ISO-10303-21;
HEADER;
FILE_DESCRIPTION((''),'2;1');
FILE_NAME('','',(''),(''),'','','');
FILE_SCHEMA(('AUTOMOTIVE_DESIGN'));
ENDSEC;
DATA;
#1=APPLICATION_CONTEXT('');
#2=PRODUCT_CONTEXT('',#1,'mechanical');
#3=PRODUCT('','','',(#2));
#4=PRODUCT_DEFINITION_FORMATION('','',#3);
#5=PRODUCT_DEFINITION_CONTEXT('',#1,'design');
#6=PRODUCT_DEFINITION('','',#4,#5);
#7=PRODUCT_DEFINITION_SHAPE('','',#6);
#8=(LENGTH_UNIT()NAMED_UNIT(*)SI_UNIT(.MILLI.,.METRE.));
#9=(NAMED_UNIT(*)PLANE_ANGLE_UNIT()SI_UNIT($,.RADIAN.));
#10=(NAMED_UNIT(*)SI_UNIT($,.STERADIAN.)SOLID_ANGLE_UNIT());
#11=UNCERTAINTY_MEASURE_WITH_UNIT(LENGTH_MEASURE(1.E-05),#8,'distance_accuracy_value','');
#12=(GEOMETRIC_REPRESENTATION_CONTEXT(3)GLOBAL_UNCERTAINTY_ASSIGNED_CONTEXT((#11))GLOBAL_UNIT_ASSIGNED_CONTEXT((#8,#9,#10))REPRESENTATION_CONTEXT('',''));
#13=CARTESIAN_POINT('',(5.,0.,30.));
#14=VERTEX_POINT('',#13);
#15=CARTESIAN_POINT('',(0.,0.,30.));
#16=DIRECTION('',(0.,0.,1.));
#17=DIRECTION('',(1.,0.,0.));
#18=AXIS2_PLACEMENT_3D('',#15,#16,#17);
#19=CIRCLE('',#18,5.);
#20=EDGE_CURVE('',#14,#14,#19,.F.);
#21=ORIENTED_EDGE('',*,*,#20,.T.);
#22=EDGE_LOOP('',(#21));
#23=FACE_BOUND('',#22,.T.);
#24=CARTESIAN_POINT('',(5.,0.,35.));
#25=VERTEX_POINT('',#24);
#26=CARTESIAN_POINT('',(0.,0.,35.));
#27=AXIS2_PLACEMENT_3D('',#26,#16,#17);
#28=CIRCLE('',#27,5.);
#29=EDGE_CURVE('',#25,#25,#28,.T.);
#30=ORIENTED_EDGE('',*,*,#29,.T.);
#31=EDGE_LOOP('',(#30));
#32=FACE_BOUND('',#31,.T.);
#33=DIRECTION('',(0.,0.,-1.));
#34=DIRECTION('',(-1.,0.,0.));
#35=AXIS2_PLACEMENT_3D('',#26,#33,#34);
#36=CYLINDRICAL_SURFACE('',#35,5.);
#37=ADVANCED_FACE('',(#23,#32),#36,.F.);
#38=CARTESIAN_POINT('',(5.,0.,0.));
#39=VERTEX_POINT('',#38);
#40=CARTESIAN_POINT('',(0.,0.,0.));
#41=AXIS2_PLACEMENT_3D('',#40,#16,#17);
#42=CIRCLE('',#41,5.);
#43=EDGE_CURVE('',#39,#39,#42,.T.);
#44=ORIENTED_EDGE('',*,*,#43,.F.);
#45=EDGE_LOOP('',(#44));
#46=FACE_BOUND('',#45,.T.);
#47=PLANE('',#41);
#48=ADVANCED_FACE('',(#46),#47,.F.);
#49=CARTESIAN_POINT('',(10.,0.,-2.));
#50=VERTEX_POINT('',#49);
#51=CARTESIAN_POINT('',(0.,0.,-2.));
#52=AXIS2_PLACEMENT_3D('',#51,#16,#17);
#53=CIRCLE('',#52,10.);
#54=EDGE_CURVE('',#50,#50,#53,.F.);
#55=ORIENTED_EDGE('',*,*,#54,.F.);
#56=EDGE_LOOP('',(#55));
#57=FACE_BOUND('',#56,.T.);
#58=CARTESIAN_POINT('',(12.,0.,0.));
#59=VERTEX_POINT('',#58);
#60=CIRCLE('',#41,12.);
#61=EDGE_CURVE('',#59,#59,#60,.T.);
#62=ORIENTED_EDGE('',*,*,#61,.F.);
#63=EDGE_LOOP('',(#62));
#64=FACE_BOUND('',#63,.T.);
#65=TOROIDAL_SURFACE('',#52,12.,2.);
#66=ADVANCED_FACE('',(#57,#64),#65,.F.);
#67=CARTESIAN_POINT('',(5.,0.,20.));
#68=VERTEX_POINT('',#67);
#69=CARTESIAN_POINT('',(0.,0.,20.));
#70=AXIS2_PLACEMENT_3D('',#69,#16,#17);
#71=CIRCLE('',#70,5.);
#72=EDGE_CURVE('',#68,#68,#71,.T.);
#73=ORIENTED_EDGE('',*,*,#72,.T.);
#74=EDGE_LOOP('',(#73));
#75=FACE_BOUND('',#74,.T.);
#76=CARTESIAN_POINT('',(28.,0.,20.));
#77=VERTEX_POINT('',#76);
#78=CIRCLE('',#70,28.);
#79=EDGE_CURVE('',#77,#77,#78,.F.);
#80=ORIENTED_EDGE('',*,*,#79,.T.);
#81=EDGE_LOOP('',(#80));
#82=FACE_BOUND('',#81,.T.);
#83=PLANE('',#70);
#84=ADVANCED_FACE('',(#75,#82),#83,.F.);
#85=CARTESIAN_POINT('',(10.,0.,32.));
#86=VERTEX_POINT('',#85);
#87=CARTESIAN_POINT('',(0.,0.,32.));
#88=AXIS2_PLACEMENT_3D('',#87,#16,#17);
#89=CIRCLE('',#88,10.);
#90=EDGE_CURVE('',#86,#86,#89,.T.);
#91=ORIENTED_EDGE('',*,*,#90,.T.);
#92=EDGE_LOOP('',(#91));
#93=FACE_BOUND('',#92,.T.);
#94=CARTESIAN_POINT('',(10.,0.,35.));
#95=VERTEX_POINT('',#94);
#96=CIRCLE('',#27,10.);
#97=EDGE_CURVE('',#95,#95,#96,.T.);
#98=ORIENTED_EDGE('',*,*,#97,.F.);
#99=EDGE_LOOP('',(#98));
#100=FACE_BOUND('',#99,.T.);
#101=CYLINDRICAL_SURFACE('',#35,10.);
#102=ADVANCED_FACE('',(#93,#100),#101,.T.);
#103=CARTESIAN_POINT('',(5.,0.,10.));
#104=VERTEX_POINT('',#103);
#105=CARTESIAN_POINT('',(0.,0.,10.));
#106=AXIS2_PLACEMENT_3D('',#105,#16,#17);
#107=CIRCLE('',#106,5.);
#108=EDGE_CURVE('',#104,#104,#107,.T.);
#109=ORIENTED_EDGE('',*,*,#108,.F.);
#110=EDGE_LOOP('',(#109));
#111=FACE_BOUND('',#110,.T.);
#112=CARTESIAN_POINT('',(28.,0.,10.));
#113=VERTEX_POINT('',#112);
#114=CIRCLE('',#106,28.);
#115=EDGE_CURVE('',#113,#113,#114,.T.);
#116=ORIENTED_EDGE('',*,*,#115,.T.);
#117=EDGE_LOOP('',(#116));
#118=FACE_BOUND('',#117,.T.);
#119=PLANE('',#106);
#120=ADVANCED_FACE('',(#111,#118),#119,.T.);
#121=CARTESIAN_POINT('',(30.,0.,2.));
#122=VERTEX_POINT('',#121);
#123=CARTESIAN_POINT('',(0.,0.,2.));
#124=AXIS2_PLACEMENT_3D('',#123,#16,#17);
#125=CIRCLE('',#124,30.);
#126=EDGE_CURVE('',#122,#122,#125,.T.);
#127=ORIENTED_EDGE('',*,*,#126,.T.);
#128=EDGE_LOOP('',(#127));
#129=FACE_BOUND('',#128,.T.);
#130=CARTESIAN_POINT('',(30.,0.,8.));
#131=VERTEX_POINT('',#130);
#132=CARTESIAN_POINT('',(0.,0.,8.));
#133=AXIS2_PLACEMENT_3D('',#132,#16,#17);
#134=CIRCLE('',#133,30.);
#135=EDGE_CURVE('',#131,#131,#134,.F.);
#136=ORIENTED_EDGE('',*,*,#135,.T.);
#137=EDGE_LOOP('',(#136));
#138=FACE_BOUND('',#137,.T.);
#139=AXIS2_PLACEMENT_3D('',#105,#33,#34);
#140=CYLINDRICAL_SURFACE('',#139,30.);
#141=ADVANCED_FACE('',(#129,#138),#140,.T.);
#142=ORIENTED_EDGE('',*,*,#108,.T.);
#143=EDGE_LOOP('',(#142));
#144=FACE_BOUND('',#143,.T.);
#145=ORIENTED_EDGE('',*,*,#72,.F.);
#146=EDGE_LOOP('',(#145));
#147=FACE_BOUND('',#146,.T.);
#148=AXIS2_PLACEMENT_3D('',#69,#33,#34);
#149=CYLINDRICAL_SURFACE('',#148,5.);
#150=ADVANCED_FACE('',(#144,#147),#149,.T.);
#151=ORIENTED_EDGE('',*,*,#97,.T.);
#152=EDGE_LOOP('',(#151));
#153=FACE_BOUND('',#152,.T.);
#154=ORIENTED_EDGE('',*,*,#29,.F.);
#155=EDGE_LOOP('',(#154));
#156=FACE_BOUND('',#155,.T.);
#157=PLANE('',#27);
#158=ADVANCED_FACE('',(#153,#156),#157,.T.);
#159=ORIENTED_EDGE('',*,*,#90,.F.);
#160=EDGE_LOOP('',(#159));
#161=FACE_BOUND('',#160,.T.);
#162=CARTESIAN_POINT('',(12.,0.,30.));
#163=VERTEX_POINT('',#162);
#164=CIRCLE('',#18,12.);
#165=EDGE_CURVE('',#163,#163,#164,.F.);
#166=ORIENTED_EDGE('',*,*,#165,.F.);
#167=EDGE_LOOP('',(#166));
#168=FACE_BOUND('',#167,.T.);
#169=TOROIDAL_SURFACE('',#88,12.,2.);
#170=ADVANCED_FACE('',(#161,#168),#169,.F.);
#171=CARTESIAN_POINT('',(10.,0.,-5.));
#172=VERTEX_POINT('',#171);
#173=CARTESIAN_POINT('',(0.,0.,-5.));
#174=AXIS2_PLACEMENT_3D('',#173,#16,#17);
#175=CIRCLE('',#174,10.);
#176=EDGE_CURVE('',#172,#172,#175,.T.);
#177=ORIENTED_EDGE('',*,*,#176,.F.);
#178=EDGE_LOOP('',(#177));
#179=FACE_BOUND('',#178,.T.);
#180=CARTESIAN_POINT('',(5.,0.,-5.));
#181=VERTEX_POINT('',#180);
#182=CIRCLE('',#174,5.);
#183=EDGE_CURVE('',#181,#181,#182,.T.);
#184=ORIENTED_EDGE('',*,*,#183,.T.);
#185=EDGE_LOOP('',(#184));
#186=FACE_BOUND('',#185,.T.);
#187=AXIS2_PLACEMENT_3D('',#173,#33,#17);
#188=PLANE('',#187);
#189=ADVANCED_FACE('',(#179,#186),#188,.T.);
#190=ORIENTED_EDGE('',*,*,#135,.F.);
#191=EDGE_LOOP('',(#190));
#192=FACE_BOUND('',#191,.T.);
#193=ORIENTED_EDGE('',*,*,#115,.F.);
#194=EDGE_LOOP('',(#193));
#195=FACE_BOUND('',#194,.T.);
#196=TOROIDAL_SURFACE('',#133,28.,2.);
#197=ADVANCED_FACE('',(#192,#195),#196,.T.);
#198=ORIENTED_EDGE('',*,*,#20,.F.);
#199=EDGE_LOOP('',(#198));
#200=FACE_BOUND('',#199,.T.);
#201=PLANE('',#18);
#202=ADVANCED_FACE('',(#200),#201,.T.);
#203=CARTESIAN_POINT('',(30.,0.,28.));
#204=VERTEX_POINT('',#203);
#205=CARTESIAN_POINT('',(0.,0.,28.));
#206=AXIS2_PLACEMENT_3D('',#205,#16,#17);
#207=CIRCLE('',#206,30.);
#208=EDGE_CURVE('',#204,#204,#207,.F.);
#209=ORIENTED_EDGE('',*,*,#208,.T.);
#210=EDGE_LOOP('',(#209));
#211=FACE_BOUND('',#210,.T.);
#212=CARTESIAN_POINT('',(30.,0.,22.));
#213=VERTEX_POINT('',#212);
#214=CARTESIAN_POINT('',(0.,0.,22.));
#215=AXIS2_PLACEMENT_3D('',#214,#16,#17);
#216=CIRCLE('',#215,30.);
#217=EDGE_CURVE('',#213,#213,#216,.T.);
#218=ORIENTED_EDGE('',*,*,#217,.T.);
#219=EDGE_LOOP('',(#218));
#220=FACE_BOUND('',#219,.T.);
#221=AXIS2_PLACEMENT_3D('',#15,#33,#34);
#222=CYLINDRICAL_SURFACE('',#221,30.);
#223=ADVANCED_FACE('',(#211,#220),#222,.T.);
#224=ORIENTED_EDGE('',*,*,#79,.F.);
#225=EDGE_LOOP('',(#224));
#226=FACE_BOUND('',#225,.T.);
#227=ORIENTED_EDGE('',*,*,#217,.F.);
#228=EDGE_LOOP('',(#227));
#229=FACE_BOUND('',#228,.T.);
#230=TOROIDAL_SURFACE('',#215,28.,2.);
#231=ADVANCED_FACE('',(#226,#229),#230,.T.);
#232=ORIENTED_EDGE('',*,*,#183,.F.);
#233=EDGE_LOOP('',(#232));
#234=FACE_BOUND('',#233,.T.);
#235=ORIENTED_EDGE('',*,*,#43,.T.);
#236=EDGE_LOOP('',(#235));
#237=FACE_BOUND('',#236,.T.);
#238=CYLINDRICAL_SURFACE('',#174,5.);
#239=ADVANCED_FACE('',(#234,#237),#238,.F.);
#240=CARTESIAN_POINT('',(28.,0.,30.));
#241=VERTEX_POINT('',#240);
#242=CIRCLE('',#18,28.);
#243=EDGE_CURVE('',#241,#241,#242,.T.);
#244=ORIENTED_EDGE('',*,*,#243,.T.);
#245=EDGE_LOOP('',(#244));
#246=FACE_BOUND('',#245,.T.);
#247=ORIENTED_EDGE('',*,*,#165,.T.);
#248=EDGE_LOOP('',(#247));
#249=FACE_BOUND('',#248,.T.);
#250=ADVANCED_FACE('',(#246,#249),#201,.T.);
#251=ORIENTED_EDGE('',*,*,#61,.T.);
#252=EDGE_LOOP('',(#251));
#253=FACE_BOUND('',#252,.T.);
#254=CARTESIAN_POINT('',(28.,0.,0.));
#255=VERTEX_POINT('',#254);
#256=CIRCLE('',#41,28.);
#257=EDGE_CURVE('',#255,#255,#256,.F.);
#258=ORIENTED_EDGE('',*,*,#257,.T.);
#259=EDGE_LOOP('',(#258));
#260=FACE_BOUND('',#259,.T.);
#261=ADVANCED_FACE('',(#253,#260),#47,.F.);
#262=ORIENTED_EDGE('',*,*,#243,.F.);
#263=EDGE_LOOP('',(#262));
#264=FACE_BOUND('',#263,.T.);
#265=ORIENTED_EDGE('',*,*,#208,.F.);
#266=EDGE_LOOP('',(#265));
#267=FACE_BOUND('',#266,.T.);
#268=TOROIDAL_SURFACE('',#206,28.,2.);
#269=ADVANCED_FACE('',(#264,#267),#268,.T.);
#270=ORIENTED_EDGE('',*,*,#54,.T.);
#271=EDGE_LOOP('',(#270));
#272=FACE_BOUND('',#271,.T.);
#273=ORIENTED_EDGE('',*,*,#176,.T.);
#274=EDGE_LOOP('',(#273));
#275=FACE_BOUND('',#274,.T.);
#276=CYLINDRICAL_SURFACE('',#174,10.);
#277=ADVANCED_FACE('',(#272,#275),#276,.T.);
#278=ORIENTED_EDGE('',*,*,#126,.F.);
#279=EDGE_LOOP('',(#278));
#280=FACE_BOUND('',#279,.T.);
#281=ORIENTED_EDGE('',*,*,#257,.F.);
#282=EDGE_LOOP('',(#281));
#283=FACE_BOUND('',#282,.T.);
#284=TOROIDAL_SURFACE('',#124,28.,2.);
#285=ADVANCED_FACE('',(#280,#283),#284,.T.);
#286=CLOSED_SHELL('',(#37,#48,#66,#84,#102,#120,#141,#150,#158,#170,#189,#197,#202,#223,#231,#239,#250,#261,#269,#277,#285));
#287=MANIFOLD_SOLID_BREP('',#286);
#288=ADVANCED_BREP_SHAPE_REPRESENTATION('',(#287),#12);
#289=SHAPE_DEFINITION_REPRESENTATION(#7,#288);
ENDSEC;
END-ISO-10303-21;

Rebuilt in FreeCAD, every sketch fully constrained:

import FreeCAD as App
import Part
import Sketcher

V = App.Vector


def edges_at(feature, points):
    """Names of the edges that pass closest to the given points."""
    edges = feature.Shape.Edges
    near = lambda p: min(range(len(edges)), key=lambda i: edges[i].distToShape(Part.Vertex(*p))[0])
    return sorted({f"Edge{near(p) + 1}" for p in points})

doc = App.newDocument("Part")
params = doc.addObject("Spreadsheet::Sheet", "Params")
for row, (alias, value) in enumerate([
    ("sketch1_diameter", "60 mm"),
    ("pad1_length", "10 mm"),
    ("sketch2_diameter", "10 mm"),
    ("pad2_length", "10 mm"),
    ("sketch3_diameter", "60 mm"),
    ("pad3_length", "10 mm"),
    ("sketch4_diameter", "20 mm"),
    ("sketch4_diameter2", "10 mm"),
    ("pad4_length", "5 mm"),
    ("fillet_radius", "2 mm"),
    ("fillet2_radius", "2 mm"),
], start=1):
    params.set(f"A{row}", alias)
    params.set(f"B{row}", "=" + value)
    params.setAlias(f"B{row}", alias)

body = doc.addObject("PartDesign::Body", "Body")

# Sketch on XY plane
sketch1 = body.newObject("Sketcher::SketchObject", "Sketch")
sketch1.AttachmentSupport = (doc.getObject("XY_Plane"), [""])
sketch1.MapMode = "FlatFace"
sketch1.addGeometry(Part.Circle(V(0, 0, 0), V(0, 0, 1), 30), False)
sketch1.addConstraint([
    Sketcher.Constraint("Coincident", 0, 3, -1, 1),
    Sketcher.Constraint("Diameter", 0, 60.0),
])
sketch1.setExpression("Constraints[1]", "Params.sketch1_diameter")
pad1 = body.newObject("PartDesign::Pad", "Pad")
pad1.Profile = sketch1
pad1.setExpression("Length", "Params.pad1_length")

# Sketch on XY plane
sketch2 = body.newObject("Sketcher::SketchObject", "Sketch001")
sketch2.AttachmentSupport = (doc.getObject("XY_Plane"), [""])
sketch2.MapMode = "FlatFace"
sketch2.AttachmentOffset = App.Placement(V(0, 0, 10), App.Rotation())
sketch2.addGeometry(Part.Circle(V(0, 0, 0), V(0, 0, 1), 5), False)
sketch2.addConstraint([
    Sketcher.Constraint("Coincident", 0, 3, -1, 1),
    Sketcher.Constraint("Diameter", 0, 10.0),
])
sketch2.setExpression("Constraints[1]", "Params.sketch2_diameter")
pad2 = body.newObject("PartDesign::Pad", "Pad001")
pad2.Profile = sketch2
pad2.setExpression("Length", "Params.pad2_length")

# Sketch on XY plane
sketch3 = body.newObject("Sketcher::SketchObject", "Sketch002")
sketch3.AttachmentSupport = (doc.getObject("XY_Plane"), [""])
sketch3.MapMode = "FlatFace"
sketch3.AttachmentOffset = App.Placement(V(0, 0, 20), App.Rotation())
sketch3.addGeometry(Part.Circle(V(0, 0, 0), V(0, 0, 1), 30), False)
sketch3.addConstraint([
    Sketcher.Constraint("Coincident", 0, 3, -1, 1),
    Sketcher.Constraint("Diameter", 0, 60.0),
])
sketch3.setExpression("Constraints[1]", "Params.sketch3_diameter")
pad3 = body.newObject("PartDesign::Pad", "Pad002")
pad3.Profile = sketch3
pad3.setExpression("Length", "Params.pad3_length")

# Sketch on XY plane
sketch4 = body.newObject("Sketcher::SketchObject", "Sketch003")
sketch4.AttachmentSupport = (doc.getObject("XY_Plane"), [""])
sketch4.MapMode = "FlatFace"
sketch4.AttachmentOffset = App.Placement(V(0, 0, 30), App.Rotation())
sketch4.addGeometry([
    Part.Circle(V(0, 0, 0), V(0, 0, 1), 10),
    Part.Circle(V(0, 0, 0), V(0, 0, 1), 5),
], False)
sketch4.addConstraint([
    Sketcher.Constraint("Coincident", 0, 3, -1, 1),
    Sketcher.Constraint("Coincident", 1, 3, -1, 1),
    Sketcher.Constraint("Diameter", 0, 20.0),
    Sketcher.Constraint("Diameter", 1, 10.0),
])
sketch4.setExpression("Constraints[2]", "Params.sketch4_diameter")
sketch4.setExpression("Constraints[3]", "Params.sketch4_diameter2")
pad4 = body.newObject("PartDesign::Pad", "Pad003")
pad4.Profile = sketch4
pad4.setExpression("Length", "Params.pad4_length")
doc.recompute()

datumplane = body.newObject("PartDesign::Plane", "DatumPlane")
datumplane.AttachmentSupport = (doc.getObject("XY_Plane"), [""])
datumplane.MapMode = "FlatFace"
datumplane.AttachmentOffset = App.Placement(V(0, 0, 15), App.Rotation())
mirrored = body.newObject("PartDesign::Mirrored", "Mirrored")
mirrored.Originals = [pad4]
mirrored.MirrorPlane = (datumplane, [""])
body.Tip = mirrored
doc.recompute()

fillet = body.newObject("PartDesign::Fillet", "Fillet")
fillet.Base = (mirrored, edges_at(mirrored, [(-10, 0, 30), (-10, 0, 0)]))
fillet.setExpression("Radius", "Params.fillet_radius")
doc.recompute()

fillet2 = body.newObject("PartDesign::Fillet", "Fillet001")
fillet2.Base = (fillet, edges_at(fillet, [
    (-30, 0, 30),
    (-30, 0, 0),
    (-30, 0, 10),
    (-30, 0, 20),
]))
fillet2.setExpression("Radius", "Params.fillet2_radius")

doc.recompute()
